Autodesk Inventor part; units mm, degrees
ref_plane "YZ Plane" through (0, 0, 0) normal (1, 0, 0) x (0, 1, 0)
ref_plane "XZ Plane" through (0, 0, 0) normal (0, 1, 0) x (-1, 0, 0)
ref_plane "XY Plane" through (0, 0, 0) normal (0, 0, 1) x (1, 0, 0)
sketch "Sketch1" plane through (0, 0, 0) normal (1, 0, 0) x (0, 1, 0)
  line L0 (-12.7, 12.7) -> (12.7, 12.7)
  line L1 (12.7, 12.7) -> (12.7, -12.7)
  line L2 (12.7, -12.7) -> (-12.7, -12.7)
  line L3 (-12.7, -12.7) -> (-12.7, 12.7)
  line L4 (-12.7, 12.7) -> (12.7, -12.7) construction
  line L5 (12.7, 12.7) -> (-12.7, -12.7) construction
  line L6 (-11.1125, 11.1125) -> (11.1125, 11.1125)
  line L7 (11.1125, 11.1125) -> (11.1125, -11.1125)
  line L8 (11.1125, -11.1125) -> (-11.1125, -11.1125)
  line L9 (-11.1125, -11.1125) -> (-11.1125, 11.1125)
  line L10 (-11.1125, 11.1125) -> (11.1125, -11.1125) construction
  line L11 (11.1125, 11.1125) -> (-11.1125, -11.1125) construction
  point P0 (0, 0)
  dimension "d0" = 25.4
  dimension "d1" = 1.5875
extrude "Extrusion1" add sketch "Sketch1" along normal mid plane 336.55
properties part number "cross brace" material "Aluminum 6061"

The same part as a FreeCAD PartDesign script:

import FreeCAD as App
import Part
import Sketcher

V = App.Vector
Q = App.Units.Quantity


def add_polygon(sketch, points):
    """Adds a closed chain of lines whose ends are joined by coincident constraints."""
    first, n = sketch.GeometryCount, len(points)
    for a, b in zip(points, points[1:] + points[:1]):
        sketch.addGeometry(Part.LineSegment(App.Vector(*a, 0), App.Vector(*b, 0)), False)
    for i in range(n):
        sketch.addConstraint(Sketcher.Constraint("Coincident", first + i, 2, first + (i + 1) % n, 1))

doc = App.newDocument("Part")
body = doc.addObject("PartDesign::Body", "Body")

# Sketch on YZ plane
sketch1 = doc.addObject("Sketcher::SketchObject", "Sketch")
body.addObject(sketch1)
sketch1.AttachmentSupport = (doc.YZ_Plane, [""])
sketch1.MapMode = "FlatFace"
add_polygon(sketch1, [(13, 13), (-13, 13), (-13, -13), (13, -13)])  # lines 0-3
add_polygon(sketch1, [(-11, -11), (-11, 11), (11, 11), (11, -11)])  # lines 4-7
sketch1.addConstraint(Sketcher.Constraint("Horizontal", 0))
sketch1.addConstraint(Sketcher.Constraint("Vertical", 1))
sketch1.addConstraint(Sketcher.Constraint("Horizontal", 2))
sketch1.addConstraint(Sketcher.Constraint("Vertical", 3))
sketch1.addConstraint(Sketcher.Constraint("Vertical", 4))
sketch1.addConstraint(Sketcher.Constraint("Horizontal", 5))
sketch1.addConstraint(Sketcher.Constraint("Vertical", 6))
sketch1.addConstraint(Sketcher.Constraint("Horizontal", 7))
sketch1.addConstraint(Sketcher.Constraint("Symmetric", 0, 2, 2, 2, -1, 1))
sketch1.addConstraint(Sketcher.Constraint("Symmetric", 4, 2, 6, 2, -1, 1))
sketch1.addConstraint(Sketcher.Constraint("Equal", 2, 1))
sketch1.addConstraint(Sketcher.Constraint("Equal", 7, 4))
sketch1.addConstraint(Sketcher.Constraint("DistanceX", 0, 2, 0, 1, Q("1 in")))
sketch1.addConstraint(Sketcher.Constraint("DistanceX", 0, 2, 4, 2, Q("0.0625 in")))
pad1 = doc.addObject("PartDesign::Pad", "Pad")
body.addObject(pad1)
pad1.Profile = sketch1
pad1.Length = Q("13.25 in")
pad1.Midplane = True

doc.recompute()
